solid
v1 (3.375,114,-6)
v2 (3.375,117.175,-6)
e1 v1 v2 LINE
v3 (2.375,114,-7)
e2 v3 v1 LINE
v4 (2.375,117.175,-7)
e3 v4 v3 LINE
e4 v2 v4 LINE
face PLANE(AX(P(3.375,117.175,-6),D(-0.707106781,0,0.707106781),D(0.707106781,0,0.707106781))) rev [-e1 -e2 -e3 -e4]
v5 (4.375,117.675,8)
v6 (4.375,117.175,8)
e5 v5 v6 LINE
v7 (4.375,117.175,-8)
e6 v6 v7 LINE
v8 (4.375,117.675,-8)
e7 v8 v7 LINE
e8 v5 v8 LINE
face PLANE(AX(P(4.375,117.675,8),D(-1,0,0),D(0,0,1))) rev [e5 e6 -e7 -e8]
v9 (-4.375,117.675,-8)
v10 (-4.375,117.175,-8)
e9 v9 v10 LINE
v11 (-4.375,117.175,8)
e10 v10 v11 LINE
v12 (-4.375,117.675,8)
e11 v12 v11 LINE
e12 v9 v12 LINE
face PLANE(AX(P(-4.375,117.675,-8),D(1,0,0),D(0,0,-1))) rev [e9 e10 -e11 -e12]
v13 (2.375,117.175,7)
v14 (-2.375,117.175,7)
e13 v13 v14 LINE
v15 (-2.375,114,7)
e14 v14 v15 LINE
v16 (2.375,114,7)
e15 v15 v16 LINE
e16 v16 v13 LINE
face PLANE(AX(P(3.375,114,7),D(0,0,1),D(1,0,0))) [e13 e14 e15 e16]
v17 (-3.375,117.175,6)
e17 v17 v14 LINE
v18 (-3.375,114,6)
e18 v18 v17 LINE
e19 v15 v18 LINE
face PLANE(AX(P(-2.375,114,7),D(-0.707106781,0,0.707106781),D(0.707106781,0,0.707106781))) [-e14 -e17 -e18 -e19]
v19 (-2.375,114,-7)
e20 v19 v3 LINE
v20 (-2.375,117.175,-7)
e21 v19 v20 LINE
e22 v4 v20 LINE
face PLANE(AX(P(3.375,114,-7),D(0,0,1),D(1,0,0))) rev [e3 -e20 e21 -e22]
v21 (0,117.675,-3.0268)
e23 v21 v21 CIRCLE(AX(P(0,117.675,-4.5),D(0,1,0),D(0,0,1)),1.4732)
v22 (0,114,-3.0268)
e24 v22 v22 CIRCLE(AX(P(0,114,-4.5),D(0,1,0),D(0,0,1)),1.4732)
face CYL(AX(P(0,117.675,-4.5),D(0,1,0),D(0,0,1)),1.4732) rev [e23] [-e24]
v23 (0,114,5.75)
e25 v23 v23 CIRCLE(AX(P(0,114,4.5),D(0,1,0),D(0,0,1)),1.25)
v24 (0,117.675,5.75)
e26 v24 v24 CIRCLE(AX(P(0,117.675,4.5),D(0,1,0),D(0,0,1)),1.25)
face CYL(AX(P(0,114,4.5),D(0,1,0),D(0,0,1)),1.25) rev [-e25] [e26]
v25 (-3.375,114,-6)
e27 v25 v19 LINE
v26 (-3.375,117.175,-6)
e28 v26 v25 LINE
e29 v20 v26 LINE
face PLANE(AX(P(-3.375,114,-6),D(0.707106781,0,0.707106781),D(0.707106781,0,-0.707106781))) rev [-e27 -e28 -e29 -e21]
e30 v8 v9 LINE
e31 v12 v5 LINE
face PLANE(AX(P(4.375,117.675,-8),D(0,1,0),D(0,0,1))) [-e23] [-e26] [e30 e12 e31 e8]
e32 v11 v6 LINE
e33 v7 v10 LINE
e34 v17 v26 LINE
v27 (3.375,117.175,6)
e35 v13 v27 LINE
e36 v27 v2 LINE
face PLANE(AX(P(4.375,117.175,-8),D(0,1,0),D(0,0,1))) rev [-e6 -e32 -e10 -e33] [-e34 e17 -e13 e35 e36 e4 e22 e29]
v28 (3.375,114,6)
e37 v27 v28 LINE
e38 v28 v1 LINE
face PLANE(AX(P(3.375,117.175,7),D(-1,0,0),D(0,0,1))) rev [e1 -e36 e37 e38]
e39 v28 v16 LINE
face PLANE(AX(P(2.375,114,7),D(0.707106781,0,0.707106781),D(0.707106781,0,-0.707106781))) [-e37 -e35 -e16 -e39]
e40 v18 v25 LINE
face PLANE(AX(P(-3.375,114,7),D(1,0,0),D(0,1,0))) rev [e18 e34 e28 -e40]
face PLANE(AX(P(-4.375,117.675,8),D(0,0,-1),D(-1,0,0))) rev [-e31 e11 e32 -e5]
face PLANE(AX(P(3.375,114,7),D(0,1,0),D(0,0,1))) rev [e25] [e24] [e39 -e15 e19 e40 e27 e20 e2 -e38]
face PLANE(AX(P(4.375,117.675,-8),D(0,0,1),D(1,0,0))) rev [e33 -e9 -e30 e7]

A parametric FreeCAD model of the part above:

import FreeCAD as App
import Part
import Sketcher
from FreeCAD import Vector


def edges_at(feature, points):
    """Names of the edges that pass closest to the given points."""
    edges = feature.Shape.Edges
    near = lambda p: min(range(len(edges)), key=lambda i: edges[i].distToShape(Part.Vertex(*p))[0])
    return sorted({f"Edge{near(p) + 1}" for p in points})


def add_polygon(sketch, points):
    """Adds a closed chain of lines whose ends are joined by coincident constraints."""
    first, n = sketch.GeometryCount, len(points)
    for a, b in zip(points, points[1:] + points[:1]):
        sketch.addGeometry(Part.LineSegment(App.Vector(*a, 0), App.Vector(*b, 0)), False)
    for i in range(n):
        sketch.addConstraint(Sketcher.Constraint("Coincident", first + i, 2, first + (i + 1) % n, 1))

doc = App.newDocument("Part")
body = doc.addObject("PartDesign::Body", "Body")

# Sketch on XY plane
sketch1 = body.newObject("Sketcher::SketchObject", "Sketch")
sketch1.AttachmentSupport = (doc.getObject("XY_Plane"), [""])
sketch1.MapMode = "FlatFace"
add_polygon(sketch1, [(-3.4, 117.2), (-3.4, 114), (3.4, 114), (3.4, 117.2)])  # lines 0-3
sketch1.addConstraint(Sketcher.Constraint("Vertical", 0))
sketch1.addConstraint(Sketcher.Constraint("Horizontal", 1))
sketch1.addConstraint(Sketcher.Constraint("Vertical", 2))
sketch1.addConstraint(Sketcher.Constraint("Horizontal", 3))
sketch1.addConstraint(Sketcher.Constraint("DistanceY", -1, 1, 0, 2, 114.0))
sketch1.addConstraint(Sketcher.Constraint("DistanceX", 1, 1, 1, 2, 6.75))
sketch1.addConstraint(Sketcher.Constraint("DistanceY", 0, 2, 0, 1, 3.175))
sketch1.addConstraint(Sketcher.Constraint("DistanceX", 0, 2, -1, 1, 3.375))
pad1 = body.newObject("PartDesign::Pad", "Pad")
pad1.Profile = sketch1
pad1.Length = 14
pad1.Midplane = True

# Sketch on XZ plane
sketch2 = body.newObject("Sketcher::SketchObject", "Sketch001")
sketch2.AttachmentSupport = (doc.getObject("XZ_Plane"), [""])
sketch2.MapMode = "FlatFace"
sketch2.AttachmentOffset = App.Placement(Vector(0, 0, -117.175), App.Rotation())
add_polygon(sketch2, [(-4, -8), (-4, 8), (4, 8), (4, -8)])  # lines 0-3
sketch2.addConstraint(Sketcher.Constraint("Vertical", 0))
sketch2.addConstraint(Sketcher.Constraint("Horizontal", 1))
sketch2.addConstraint(Sketcher.Constraint("Vertical", 2))
sketch2.addConstraint(Sketcher.Constraint("Horizontal", 3))
sketch2.addConstraint(Sketcher.Constraint("Symmetric", 0, 2, 2, 2, -1, 1))
sketch2.addConstraint(Sketcher.Constraint("DistanceY", 0, 1, 0, 2, 16.0))
sketch2.addConstraint(Sketcher.Constraint("DistanceX", 1, 1, 1, 2, 8.75))
pad2 = body.newObject("PartDesign::Pad", "Pad001")
pad2.Profile = sketch2
pad2.Length = 0.5
pad2.Reversed = True

# Sketch on XZ plane
sketch3 = body.newObject("Sketcher::SketchObject", "Sketch002")
sketch3.AttachmentSupport = (doc.getObject("XZ_Plane"), [""])
sketch3.MapMode = "FlatFace"
sketch3.AttachmentOffset = App.Placement(Vector(0, 0, -117.675), App.Rotation())
sketch3.addGeometry(Part.Circle(Vector(0, -4.5, 0), Vector(0, 0, 1), 1.5), False)
sketch3.addConstraint(Sketcher.Constraint("PointOnObject", 0, 3, -2))
sketch3.addConstraint(Sketcher.Constraint("Diameter", 0, 2.9464))
sketch3.addConstraint(Sketcher.Constraint("DistanceY", 0, 3, -1, 1, 4.5))
doc.recompute()
hole = body.newObject("PartDesign::Hole", "Hole")
hole.Profile = sketch3
hole.ThreadType = "None"
hole.Diameter = 2.9464
hole.DepthType = "ThroughAll"
hole.Reversed = True

# Sketch on XZ plane
sketch4 = body.newObject("Sketcher::SketchObject", "Sketch003")
sketch4.AttachmentSupport = (doc.getObject("XZ_Plane"), [""])
sketch4.MapMode = "FlatFace"
sketch4.AttachmentOffset = App.Placement(Vector(0, 0, -117.675), App.Rotation())
sketch4.addGeometry(Part.Circle(Vector(0, 4.5, 0), Vector(0, 0, 1), 1.2), False)
sketch4.addConstraint(Sketcher.Constraint("PointOnObject", 0, 3, -2))
sketch4.addConstraint(Sketcher.Constraint("Diameter", 0, 2.5))
sketch4.addConstraint(Sketcher.Constraint("DistanceY", -1, 1, 0, 3, 4.5))
pocket1 = body.newObject("PartDesign::Pocket", "Pocket")
pocket1.Profile = sketch4
pocket1.Type = "ThroughAll"
pocket1.Reversed = True
doc.recompute()

chamfer = body.newObject("PartDesign::Chamfer", "Chamfer")
chamfer.Base = (pocket1, edges_at(pocket1, [
    (-3.375, 115.588, 7),
    (-3.375, 115.588, -7),
    (3.375, 115.588, -7),
    (3.375, 115.588, 7),
]))
chamfer.Size = 1

doc.recompute()
